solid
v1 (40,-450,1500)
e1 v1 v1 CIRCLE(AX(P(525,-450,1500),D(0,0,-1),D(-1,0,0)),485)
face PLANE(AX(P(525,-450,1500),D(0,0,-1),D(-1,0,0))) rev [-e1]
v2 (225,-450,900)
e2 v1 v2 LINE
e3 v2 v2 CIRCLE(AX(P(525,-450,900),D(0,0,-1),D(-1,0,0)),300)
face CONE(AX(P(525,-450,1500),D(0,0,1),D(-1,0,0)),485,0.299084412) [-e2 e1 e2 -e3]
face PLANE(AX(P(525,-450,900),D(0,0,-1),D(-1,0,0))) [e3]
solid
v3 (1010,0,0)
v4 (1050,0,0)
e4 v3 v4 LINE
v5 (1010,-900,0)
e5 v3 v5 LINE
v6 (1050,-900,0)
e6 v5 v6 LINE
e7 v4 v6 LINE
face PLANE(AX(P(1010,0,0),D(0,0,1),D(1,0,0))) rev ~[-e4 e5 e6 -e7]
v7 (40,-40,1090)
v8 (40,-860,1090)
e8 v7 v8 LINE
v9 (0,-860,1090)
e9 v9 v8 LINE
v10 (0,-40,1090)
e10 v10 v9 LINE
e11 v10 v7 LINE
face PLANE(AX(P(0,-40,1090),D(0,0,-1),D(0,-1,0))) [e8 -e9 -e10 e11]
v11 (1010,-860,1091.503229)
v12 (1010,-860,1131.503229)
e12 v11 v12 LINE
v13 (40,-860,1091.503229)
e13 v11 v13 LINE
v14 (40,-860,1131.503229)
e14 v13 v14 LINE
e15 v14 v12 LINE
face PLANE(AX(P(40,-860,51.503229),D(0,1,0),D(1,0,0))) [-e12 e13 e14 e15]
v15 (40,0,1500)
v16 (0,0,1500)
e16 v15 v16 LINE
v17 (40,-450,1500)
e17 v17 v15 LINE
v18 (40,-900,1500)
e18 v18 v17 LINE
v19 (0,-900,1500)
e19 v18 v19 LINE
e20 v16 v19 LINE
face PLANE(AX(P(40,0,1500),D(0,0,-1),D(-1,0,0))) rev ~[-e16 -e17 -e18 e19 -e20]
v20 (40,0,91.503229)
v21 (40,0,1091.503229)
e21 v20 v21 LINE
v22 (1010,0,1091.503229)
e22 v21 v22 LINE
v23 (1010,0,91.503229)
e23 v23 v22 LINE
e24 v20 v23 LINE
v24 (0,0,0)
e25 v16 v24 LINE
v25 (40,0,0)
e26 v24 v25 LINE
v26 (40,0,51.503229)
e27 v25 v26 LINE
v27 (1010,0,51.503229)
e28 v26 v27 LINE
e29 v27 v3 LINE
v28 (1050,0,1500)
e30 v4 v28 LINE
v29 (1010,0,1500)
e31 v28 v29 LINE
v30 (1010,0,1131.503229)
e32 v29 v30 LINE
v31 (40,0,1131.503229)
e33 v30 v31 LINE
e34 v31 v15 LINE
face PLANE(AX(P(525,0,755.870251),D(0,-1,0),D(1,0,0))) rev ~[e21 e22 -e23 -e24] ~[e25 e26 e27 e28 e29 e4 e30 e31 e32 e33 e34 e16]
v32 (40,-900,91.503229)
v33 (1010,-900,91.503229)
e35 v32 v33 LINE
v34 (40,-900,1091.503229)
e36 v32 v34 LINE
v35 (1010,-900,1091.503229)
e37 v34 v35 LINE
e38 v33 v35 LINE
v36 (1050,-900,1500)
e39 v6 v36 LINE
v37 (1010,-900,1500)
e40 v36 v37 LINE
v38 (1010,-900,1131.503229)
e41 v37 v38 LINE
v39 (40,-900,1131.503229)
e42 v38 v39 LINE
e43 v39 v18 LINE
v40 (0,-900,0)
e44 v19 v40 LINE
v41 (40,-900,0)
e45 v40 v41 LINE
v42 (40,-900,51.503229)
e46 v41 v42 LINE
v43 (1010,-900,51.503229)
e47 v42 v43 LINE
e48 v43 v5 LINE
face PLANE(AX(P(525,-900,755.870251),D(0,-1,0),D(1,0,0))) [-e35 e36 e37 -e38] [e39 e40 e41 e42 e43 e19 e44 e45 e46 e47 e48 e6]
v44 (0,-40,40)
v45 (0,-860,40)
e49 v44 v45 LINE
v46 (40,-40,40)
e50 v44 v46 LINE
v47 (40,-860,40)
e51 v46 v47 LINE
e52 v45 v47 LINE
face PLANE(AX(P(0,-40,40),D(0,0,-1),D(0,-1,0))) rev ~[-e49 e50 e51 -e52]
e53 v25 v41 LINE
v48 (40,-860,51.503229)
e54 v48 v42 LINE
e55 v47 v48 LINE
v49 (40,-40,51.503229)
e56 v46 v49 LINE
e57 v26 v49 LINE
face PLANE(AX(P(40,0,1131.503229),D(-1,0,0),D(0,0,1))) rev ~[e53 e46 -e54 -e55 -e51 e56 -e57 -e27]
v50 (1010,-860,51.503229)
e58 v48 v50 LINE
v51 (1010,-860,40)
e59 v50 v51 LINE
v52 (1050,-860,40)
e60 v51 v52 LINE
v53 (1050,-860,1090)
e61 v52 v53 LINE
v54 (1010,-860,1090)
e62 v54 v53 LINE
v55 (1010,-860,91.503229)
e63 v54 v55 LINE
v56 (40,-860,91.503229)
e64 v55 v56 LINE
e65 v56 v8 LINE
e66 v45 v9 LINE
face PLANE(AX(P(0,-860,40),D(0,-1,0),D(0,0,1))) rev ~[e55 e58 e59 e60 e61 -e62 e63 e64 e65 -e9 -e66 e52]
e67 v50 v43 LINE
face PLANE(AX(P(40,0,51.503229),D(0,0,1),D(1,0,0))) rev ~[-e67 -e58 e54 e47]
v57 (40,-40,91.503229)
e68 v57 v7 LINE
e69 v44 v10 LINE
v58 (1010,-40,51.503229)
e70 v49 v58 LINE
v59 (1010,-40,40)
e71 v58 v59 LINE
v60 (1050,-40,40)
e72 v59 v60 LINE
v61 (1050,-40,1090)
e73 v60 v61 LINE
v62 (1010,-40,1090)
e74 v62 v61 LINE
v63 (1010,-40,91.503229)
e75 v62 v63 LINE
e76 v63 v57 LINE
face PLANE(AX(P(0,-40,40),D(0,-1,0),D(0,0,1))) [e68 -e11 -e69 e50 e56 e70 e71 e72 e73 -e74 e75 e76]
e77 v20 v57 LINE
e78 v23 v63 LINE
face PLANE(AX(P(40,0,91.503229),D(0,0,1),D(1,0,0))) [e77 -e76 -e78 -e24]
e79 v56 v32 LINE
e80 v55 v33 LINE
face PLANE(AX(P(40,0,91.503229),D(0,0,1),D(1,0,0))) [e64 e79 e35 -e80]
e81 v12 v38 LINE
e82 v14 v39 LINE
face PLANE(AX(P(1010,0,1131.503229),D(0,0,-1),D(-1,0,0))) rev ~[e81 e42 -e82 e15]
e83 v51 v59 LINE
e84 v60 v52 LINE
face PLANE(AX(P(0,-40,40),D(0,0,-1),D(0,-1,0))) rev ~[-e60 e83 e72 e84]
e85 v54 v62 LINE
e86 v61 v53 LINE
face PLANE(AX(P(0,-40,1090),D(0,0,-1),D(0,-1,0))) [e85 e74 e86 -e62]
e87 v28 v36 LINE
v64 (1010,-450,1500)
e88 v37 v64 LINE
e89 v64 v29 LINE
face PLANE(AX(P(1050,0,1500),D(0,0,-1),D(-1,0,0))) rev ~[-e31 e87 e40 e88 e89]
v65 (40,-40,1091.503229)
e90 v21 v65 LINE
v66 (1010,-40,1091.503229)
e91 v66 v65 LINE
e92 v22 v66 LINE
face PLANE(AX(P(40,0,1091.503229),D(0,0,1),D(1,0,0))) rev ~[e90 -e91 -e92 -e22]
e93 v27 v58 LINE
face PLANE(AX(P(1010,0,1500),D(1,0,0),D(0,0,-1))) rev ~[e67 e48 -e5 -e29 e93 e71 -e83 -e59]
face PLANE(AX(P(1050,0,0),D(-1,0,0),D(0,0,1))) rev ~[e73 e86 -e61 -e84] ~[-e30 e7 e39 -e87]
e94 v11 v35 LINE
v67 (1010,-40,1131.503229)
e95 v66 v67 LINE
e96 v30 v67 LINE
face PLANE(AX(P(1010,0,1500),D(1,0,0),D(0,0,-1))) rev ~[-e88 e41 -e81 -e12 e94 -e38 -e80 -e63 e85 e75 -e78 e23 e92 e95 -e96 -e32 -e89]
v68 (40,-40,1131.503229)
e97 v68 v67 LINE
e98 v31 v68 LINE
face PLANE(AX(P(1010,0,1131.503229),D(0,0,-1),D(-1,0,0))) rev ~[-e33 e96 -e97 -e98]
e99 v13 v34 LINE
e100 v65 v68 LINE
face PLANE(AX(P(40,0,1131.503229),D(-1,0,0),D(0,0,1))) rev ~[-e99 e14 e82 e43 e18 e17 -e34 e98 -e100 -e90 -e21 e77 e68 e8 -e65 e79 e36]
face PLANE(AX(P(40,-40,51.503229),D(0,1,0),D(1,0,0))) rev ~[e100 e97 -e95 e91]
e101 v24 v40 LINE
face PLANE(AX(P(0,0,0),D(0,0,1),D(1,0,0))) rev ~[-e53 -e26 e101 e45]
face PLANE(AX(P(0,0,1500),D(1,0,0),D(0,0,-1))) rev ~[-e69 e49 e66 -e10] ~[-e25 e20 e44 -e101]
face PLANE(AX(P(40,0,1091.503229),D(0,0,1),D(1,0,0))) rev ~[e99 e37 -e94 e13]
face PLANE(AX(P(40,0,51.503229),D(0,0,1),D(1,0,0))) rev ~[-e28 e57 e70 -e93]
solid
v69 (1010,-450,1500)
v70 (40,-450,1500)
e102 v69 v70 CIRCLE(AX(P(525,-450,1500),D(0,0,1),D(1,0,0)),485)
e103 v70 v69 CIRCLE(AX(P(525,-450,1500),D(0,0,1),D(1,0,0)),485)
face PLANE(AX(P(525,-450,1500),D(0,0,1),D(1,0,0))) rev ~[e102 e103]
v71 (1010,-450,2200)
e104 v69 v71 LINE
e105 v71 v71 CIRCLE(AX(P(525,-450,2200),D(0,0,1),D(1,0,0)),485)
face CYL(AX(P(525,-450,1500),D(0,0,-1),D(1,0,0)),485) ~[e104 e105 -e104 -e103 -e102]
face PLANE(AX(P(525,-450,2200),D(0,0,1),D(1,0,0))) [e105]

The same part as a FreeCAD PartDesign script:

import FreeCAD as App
import Part
import Sketcher
Q = App.Units.Quantity

doc = App.newDocument("Part")
body = doc.addObject("PartDesign::Body", "Body")
body.AllowCompound = True

sketch1 = body.newObject("Sketcher::SketchObject", "Sketch")
sketch1.AttachmentSupport = (doc.getObject("XZ_Plane"), [""])
sketch1.MapMode = "FlatFace"
sketch1.addGeometry(Part.LineSegment(App.Vector(0, 1500, 0), App.Vector(0, 0, 0)), False)
sketch1.addGeometry(Part.LineSegment(App.Vector(0, 0, 0), App.Vector(40, 0, 0)), False)
sketch1.addGeometry(Part.LineSegment(App.Vector(40, 0, 0), App.Vector(40, 51.503229, 0)), False)
sketch1.addGeometry(Part.LineSegment(App.Vector(40, 51.503229, 0), App.Vector(1010, 51.503229, 0)), False)
sketch1.addGeometry(Part.LineSegment(App.Vector(1010, 51.503229, 0), App.Vector(1010, 0, 0)), False)
sketch1.addGeometry(Part.LineSegment(App.Vector(1010, 0, 0), App.Vector(1050, 0, 0)), False)
sketch1.addGeometry(Part.LineSegment(App.Vector(1050, 0, 0), App.Vector(1050, 1500, 0)), False)
sketch1.addGeometry(Part.LineSegment(App.Vector(1050, 1500, 0), App.Vector(1010, 1500, 0)), False)
sketch1.addGeometry(Part.LineSegment(App.Vector(1010, 1500, 0), App.Vector(1010, 1131.503229, 0)), False)
sketch1.addGeometry(Part.LineSegment(App.Vector(1010, 1131.503229, 0), App.Vector(40, 1131.503229, 0)), False)
sketch1.addGeometry(Part.LineSegment(App.Vector(40, 1131.503229, 0), App.Vector(40, 1500, 0)), False)
sketch1.addGeometry(Part.LineSegment(App.Vector(40, 1500, 0), App.Vector(0, 1500, 0)), False)
sketch1.addGeometry(Part.LineSegment(App.Vector(1010, 91.503229, 0), App.Vector(40, 91.503229, 0)), False)
sketch1.addGeometry(Part.LineSegment(App.Vector(40, 91.503229, 0), App.Vector(40, 1091.503229, 0)), False)
sketch1.addGeometry(Part.LineSegment(App.Vector(40, 1091.503229, 0), App.Vector(1010, 1091.503229, 0)), False)
sketch1.addGeometry(Part.LineSegment(App.Vector(1010, 1091.503229, 0), App.Vector(1010, 91.503229, 0)), False)
sketch1.addConstraint(Sketcher.Constraint("Coincident", 0, 2, 1, 1))
sketch1.addConstraint(Sketcher.Constraint("Coincident", 1, 2, 2, 1))
sketch1.addConstraint(Sketcher.Constraint("Coincident", 2, 2, 3, 1))
sketch1.addConstraint(Sketcher.Constraint("Coincident", 3, 2, 4, 1))
sketch1.addConstraint(Sketcher.Constraint("Coincident", 4, 2, 5, 1))
sketch1.addConstraint(Sketcher.Constraint("Coincident", 5, 2, 6, 1))
sketch1.addConstraint(Sketcher.Constraint("Coincident", 6, 2, 7, 1))
sketch1.addConstraint(Sketcher.Constraint("Coincident", 7, 2, 8, 1))
sketch1.addConstraint(Sketcher.Constraint("Coincident", 8, 2, 9, 1))
sketch1.addConstraint(Sketcher.Constraint("Coincident", 9, 2, 10, 1))
sketch1.addConstraint(Sketcher.Constraint("Coincident", 10, 2, 11, 1))
sketch1.addConstraint(Sketcher.Constraint("Coincident", 11, 2, 0, 1))
sketch1.addConstraint(Sketcher.Constraint("Coincident", 12, 2, 13, 1))
sketch1.addConstraint(Sketcher.Constraint("Coincident", 13, 2, 14, 1))
sketch1.addConstraint(Sketcher.Constraint("Coincident", 14, 2, 15, 1))
sketch1.addConstraint(Sketcher.Constraint("Coincident", 15, 2, 12, 1))
sketch1.addConstraint(Sketcher.Constraint("Vertical", 0))
sketch1.addConstraint(Sketcher.Constraint("Horizontal", 1))
sketch1.addConstraint(Sketcher.Constraint("Vertical", 2))
sketch1.addConstraint(Sketcher.Constraint("Horizontal", 3))
sketch1.addConstraint(Sketcher.Constraint("Vertical", 4))
sketch1.addConstraint(Sketcher.Constraint("Horizontal", 5))
sketch1.addConstraint(Sketcher.Constraint("Vertical", 6))
sketch1.addConstraint(Sketcher.Constraint("Horizontal", 7))
sketch1.addConstraint(Sketcher.Constraint("Vertical", 8))
sketch1.addConstraint(Sketcher.Constraint("Horizontal", 9))
sketch1.addConstraint(Sketcher.Constraint("Vertical", 10))
sketch1.addConstraint(Sketcher.Constraint("Horizontal", 11))
sketch1.addConstraint(Sketcher.Constraint("Horizontal", 12))
sketch1.addConstraint(Sketcher.Constraint("Vertical", 13))
sketch1.addConstraint(Sketcher.Constraint("Horizontal", 14))
sketch1.addConstraint(Sketcher.Constraint("Vertical", 15))
sketch1.addConstraint(Sketcher.Constraint("Coincident", 0, 2, -1, 1))
sketch1.addConstraint(Sketcher.Constraint("PointOnObject", 4, 2, -1))
sketch1.addConstraint(Sketcher.Constraint("Horizontal", 7, 2, 10, 2))
sketch1.addConstraint(Sketcher.Constraint("Vertical", 4, 2, 7, 2))
sketch1.addConstraint(Sketcher.Constraint("Vertical", 2, 2, 9, 2))
sketch1.addConstraint(Sketcher.Constraint("Vertical", 10, 2, 12, 2))
sketch1.addConstraint(Sketcher.Constraint("Vertical", 8, 2, 14, 2))
sketch1.addConstraint(Sketcher.Constraint("Equal", 1, 5))
sketch1.addConstraint(Sketcher.Constraint("DistanceX", 1, 1, 1, 2, Q("40 mm")))
sketch1.addConstraint(Sketcher.Constraint("DistanceX", 3, 1, 3, 2, Q("970 mm")))
sketch1.addConstraint(Sketcher.Constraint("DistanceY", 0, 2, 0, 1, Q("1500 mm")))
sketch1.addConstraint(Sketcher.Constraint("DistanceY", 13, 1, 13, 2, Q("1000 mm")))
sketch1.addConstraint(Sketcher.Constraint("DistanceY", 3, 2, 8, 2, Q("1080 mm")))
sketch1.addConstraint(Sketcher.Constraint("DistanceY", 2, 2, 12, 2, Q("40 mm")))
sketch1.addConstraint(Sketcher.Constraint("DistanceY", 2, 1, 2, 2, Q("51.503229 mm")))
pad1 = body.newObject("PartDesign::Pad", "Pad")
pad1.Profile = sketch1
pad1.Length = 900

sketch2 = body.newObject("Sketcher::SketchObject", "Sketch001")
sketch2.AttachmentSupport = (doc.getObject("XY_Plane"), [""])
sketch2.MapMode = "FlatFace"
sketch2.AttachmentOffset = App.Placement(App.Vector(0, 0, 51.503229), App.Rotation())
sketch2.addGeometry(Part.LineSegment(App.Vector(40, -860, 0), App.Vector(40, -40, 0)), False)
sketch2.addGeometry(Part.LineSegment(App.Vector(40, -40, 0), App.Vector(1010, -40, 0)), False)
sketch2.addGeometry(Part.LineSegment(App.Vector(1010, -40, 0), App.Vector(1010, -860, 0)), False)
sketch2.addGeometry(Part.LineSegment(App.Vector(1010, -860, 0), App.Vector(40, -860, 0)), False)
sketch2.addConstraint(Sketcher.Constraint("Coincident", 0, 2, 1, 1))
sketch2.addConstraint(Sketcher.Constraint("Coincident", 1, 2, 2, 1))
sketch2.addConstraint(Sketcher.Constraint("Coincident", 2, 2, 3, 1))
sketch2.addConstraint(Sketcher.Constraint("Coincident", 3, 2, 0, 1))
sketch2.addConstraint(Sketcher.Constraint("Vertical", 0))
sketch2.addConstraint(Sketcher.Constraint("Horizontal", 1))
sketch2.addConstraint(Sketcher.Constraint("Vertical", 2))
sketch2.addConstraint(Sketcher.Constraint("Horizontal", 3))
sketch2.addConstraint(Sketcher.Constraint("DistanceX", 1, 1, 1, 2, Q("970 mm")))
sketch2.addConstraint(Sketcher.Constraint("DistanceY", 0, 1, 0, 2, Q("820 mm")))
sketch2.addConstraint(Sketcher.Constraint("DistanceX", -1, 1, 0, 2, Q("40 mm")))
sketch2.addConstraint(Sketcher.Constraint("DistanceY", 0, 2, -1, 1, Q("40 mm")))
pocket1 = body.newObject("PartDesign::Pocket", "Pocket")
pocket1.Profile = sketch2
pocket1.Type = "ThroughAll"
pocket1.Reversed = True

sketch3 = body.newObject("Sketcher::SketchObject", "Sketch002")
sketch3.AttachmentSupport = (doc.getObject("XY_Plane"), [""])
sketch3.MapMode = "FlatFace"
sketch3.AttachmentOffset = App.Placement(App.Vector(0, 0, 1500), App.Rotation())
sketch3.addGeometry(Part.Circle(App.Vector(525, -450, 0), App.Vector(0, 0, 1), 485), False)
sketch3.addConstraint(Sketcher.Constraint("Diameter", 0, Q("970 mm")))
sketch3.addConstraint(Sketcher.Constraint("DistanceX", -1, 1, 0, 3, Q("525 mm")))
sketch3.addConstraint(Sketcher.Constraint("DistanceY", 0, 3, -1, 1, Q("450 mm")))
pad2 = body.newObject("PartDesign::Pad", "Pad001")
pad2.Profile = sketch3
pad2.Length = 700

sketch4 = body.newObject("Sketcher::SketchObject", "Sketch003")
sketch4.AttachmentSupport = (doc.getObject("YZ_Plane"), [""])
sketch4.MapMode = "FlatFace"
sketch4.addGeometry(Part.LineSegment(App.Vector(-40, 1090, 0), App.Vector(-40, 40, 0)), False)
sketch4.addGeometry(Part.LineSegment(App.Vector(-40, 40, 0), App.Vector(-860, 40, 0)), False)
sketch4.addGeometry(Part.LineSegment(App.Vector(-860, 40, 0), App.Vector(-860, 1090, 0)), False)
sketch4.addGeometry(Part.LineSegment(App.Vector(-860, 1090, 0), App.Vector(-40, 1090, 0)), False)
sketch4.addConstraint(Sketcher.Constraint("Coincident", 0, 2, 1, 1))
sketch4.addConstraint(Sketcher.Constraint("Coincident", 1, 2, 2, 1))
sketch4.addConstraint(Sketcher.Constraint("Coincident", 2, 2, 3, 1))
sketch4.addConstraint(Sketcher.Constraint("Coincident", 3, 2, 0, 1))
sketch4.addConstraint(Sketcher.Constraint("Vertical", 0))
sketch4.addConstraint(Sketcher.Constraint("Horizontal", 1))
sketch4.addConstraint(Sketcher.Constraint("Vertical", 2))
sketch4.addConstraint(Sketcher.Constraint("Horizontal", 3))
sketch4.addConstraint(Sketcher.Constraint("DistanceX", 1, 2, 1, 1, Q("820 mm")))
sketch4.addConstraint(Sketcher.Constraint("DistanceY", 0, 2, 0, 1, Q("1050 mm")))
sketch4.addConstraint(Sketcher.Constraint("DistanceX", 0, 2, -1, 1, Q("40 mm")))
sketch4.addConstraint(Sketcher.Constraint("DistanceY", -1, 1, 0, 2, Q("40 mm")))
pocket2 = body.newObject("PartDesign::Pocket", "Pocket001")
pocket2.Profile = sketch4
pocket2.Type = "ThroughAll"
pocket2.Reversed = True
body2 = doc.addObject("PartDesign::Body", "Body001")

sketch5 = body2.newObject("Sketcher::SketchObject", "Sketch004")
sketch5.AttachmentSupport = (doc.getObject("XZ_Plane001"), [""])
sketch5.MapMode = "FlatFace"
sketch5.AttachmentOffset = App.Placement(App.Vector(0, 0, 450), App.Rotation())
sketch5.addGeometry(Part.LineSegment(App.Vector(525, 900, 0), App.Vector(525, 1500, 0)), False)
sketch5.addGeometry(Part.LineSegment(App.Vector(525, 1500, 0), App.Vector(40, 1500, 0)), False)
sketch5.addGeometry(Part.LineSegment(App.Vector(40, 1500, 0), App.Vector(225, 900, 0)), False)
sketch5.addGeometry(Part.LineSegment(App.Vector(225, 900, 0), App.Vector(525, 900, 0)), False)
sketch5.addGeometry(Part.LineSegment(App.Vector(525, 1500, 0), App.Vector(525, 900, 0)), True)
sketch5.addConstraint(Sketcher.Constraint("Coincident", 0, 2, 1, 1))
sketch5.addConstraint(Sketcher.Constraint("Coincident", 1, 2, 2, 1))
sketch5.addConstraint(Sketcher.Constraint("Coincident", 2, 2, 3, 1))
sketch5.addConstraint(Sketcher.Constraint("Coincident", 3, 2, 0, 1))
sketch5.addConstraint(Sketcher.Constraint("Vertical", 0))
sketch5.addConstraint(Sketcher.Constraint("Horizontal", 1))
sketch5.addConstraint(Sketcher.Constraint("Horizontal", 3))
sketch5.addConstraint(Sketcher.Constraint("Vertical", 4))
sketch5.addConstraint(Sketcher.Constraint("Coincident", 4, 1, 0, 2))
sketch5.addConstraint(Sketcher.Constraint("Horizontal", 2, 2, 4, 2))
sketch5.addConstraint(Sketcher.Constraint("DistanceX", 1, 2, 1, 1, Q("485 mm")))
sketch5.addConstraint(Sketcher.Constraint("DistanceX", 3, 1, 3, 2, Q("300 mm")))
sketch5.addConstraint(Sketcher.Constraint("DistanceY", 0, 1, 0, 2, Q("600 mm")))
sketch5.addConstraint(Sketcher.Constraint("DistanceX", -1, 1, 0, 2, Q("525 mm")))
sketch5.addConstraint(Sketcher.Constraint("DistanceY", -1, 1, 0, 2, Q("1500 mm")))
revolution = body2.newObject("PartDesign::Revolution", "Revolution")
revolution.Profile = sketch5
revolution.ReferenceAxis = (sketch5, ["Axis0"])
revolution.Angle = 360

doc.recompute()
